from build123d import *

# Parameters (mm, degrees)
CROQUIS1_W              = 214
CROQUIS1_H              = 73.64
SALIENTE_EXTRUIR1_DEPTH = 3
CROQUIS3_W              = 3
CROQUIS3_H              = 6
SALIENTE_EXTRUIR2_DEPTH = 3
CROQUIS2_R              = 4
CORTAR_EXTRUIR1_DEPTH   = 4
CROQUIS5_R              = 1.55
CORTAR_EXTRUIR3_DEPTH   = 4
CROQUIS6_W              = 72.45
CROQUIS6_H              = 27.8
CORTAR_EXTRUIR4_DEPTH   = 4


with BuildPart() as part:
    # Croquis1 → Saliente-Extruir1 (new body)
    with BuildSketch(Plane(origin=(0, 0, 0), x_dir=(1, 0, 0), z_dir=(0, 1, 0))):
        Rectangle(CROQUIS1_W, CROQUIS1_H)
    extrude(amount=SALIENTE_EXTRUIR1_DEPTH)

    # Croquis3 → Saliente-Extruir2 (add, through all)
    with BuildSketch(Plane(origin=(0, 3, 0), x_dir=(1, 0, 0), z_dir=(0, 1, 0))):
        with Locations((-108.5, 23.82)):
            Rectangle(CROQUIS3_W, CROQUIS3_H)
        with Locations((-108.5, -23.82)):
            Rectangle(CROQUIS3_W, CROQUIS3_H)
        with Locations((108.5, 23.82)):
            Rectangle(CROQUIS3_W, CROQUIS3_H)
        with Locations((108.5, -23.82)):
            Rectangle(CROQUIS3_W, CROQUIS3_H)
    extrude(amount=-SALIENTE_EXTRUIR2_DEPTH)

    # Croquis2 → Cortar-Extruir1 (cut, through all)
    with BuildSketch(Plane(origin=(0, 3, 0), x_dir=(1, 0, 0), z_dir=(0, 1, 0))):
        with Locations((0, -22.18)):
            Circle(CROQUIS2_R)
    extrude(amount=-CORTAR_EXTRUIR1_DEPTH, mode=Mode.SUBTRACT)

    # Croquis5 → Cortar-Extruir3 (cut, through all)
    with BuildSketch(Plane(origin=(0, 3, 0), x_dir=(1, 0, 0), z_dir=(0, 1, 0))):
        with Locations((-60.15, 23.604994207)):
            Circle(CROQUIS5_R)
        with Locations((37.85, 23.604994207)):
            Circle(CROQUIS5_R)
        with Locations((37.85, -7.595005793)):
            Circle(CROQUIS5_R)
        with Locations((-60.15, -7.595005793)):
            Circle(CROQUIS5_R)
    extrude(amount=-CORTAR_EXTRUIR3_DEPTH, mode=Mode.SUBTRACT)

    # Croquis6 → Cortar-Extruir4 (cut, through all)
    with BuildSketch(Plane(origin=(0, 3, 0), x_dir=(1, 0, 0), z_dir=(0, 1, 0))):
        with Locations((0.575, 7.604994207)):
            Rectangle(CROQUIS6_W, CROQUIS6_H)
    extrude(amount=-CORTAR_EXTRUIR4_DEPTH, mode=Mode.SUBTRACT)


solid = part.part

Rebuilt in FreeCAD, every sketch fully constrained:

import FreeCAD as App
import Part
import Sketcher

V = App.Vector
Q = App.Units.Quantity

doc = App.newDocument("Part")
params = doc.addObject("Spreadsheet::Sheet", "Params")
for row, (alias, value) in enumerate([
    ("sketch1_width", "214 mm"),
    ("sketch1_height", "73.64 mm"),
    ("pad1_length", "3 mm"),
    ("sketch2_width", "3 mm"),
    ("sketch2_height", "6 mm"),
    ("sketch3_diameter", "8 mm"),
    ("sketch4_diameter", "3.1 mm"),
    ("sketch5_height", "27.8 mm"),
    ("sketch5_width", "72.45 mm"),
], start=1):
    params.set(f"A{row}", alias)
    params.set(f"B{row}", "=" + value)
    params.setAlias(f"B{row}", alias)

body = doc.addObject("PartDesign::Body", "Body")

# Sketch on XZ plane
sketch1 = body.newObject("Sketcher::SketchObject", "Sketch")
sketch1.AttachmentSupport = (doc.getObject("XZ_Plane"), [""])
sketch1.MapMode = "FlatFace"
sketch1.addGeometry(Part.LineSegment(V(-107, -37, 0), V(-107, 37, 0)), False)
sketch1.addGeometry(Part.LineSegment(V(-107, 37, 0), V(107, 37, 0)), False)
sketch1.addGeometry(Part.LineSegment(V(107, 37, 0), V(107, -37, 0)), False)
sketch1.addGeometry(Part.LineSegment(V(107, -37, 0), V(-107, -37, 0)), False)
sketch1.addConstraint(Sketcher.Constraint("Coincident", 0, 2, 1, 1))
sketch1.addConstraint(Sketcher.Constraint("Coincident", 1, 2, 2, 1))
sketch1.addConstraint(Sketcher.Constraint("Coincident", 2, 2, 3, 1))
sketch1.addConstraint(Sketcher.Constraint("Coincident", 3, 2, 0, 1))
sketch1.addConstraint(Sketcher.Constraint("Vertical", 0))
sketch1.addConstraint(Sketcher.Constraint("Horizontal", 1))
sketch1.addConstraint(Sketcher.Constraint("Vertical", 2))
sketch1.addConstraint(Sketcher.Constraint("Horizontal", 3))
sketch1.addConstraint(Sketcher.Constraint("Symmetric", 0, 2, 2, 2, -1, 1))
sketch1.addConstraint(Sketcher.Constraint("DistanceX", 1, 1, 1, 2, Q("214 mm")))
sketch1.addConstraint(Sketcher.Constraint("DistanceY", 0, 1, 0, 2, Q("73.64 mm")))
sketch1.setExpression("Constraints[9]", "Params.sketch1_width")
sketch1.setExpression("Constraints[10]", "Params.sketch1_height")
pad1 = body.newObject("PartDesign::Pad", "Pad")
pad1.Profile = sketch1
pad1.setExpression("Length", "Params.pad1_length")
pad1.Reversed = True

# Sketch on XZ plane
sketch2 = body.newObject("Sketcher::SketchObject", "Sketch001")
sketch2.AttachmentSupport = (doc.getObject("XZ_Plane"), [""])
sketch2.MapMode = "FlatFace"
sketch2.AttachmentOffset = App.Placement(V(0, 0, -3), App.Rotation())
sketch2.addGeometry(Part.LineSegment(V(-110, -26.8, 0), V(-110, -20.8, 0)), False)
sketch2.addGeometry(Part.LineSegment(V(-110, -20.8, 0), V(-107, -20.8, 0)), False)
sketch2.addGeometry(Part.LineSegment(V(-107, -20.8, 0), V(-107, -26.8, 0)), False)
sketch2.addGeometry(Part.LineSegment(V(-107, -26.8, 0), V(-110, -26.8, 0)), False)
sketch2.addGeometry(Part.LineSegment(V(-110, 20.8, 0), V(-110, 26.8, 0)), False)
sketch2.addGeometry(Part.LineSegment(V(-110, 26.8, 0), V(-107, 26.8, 0)), False)
sketch2.addGeometry(Part.LineSegment(V(-107, 26.8, 0), V(-107, 20.8, 0)), False)
sketch2.addGeometry(Part.LineSegment(V(-107, 20.8, 0), V(-110, 20.8, 0)), False)
sketch2.addGeometry(Part.LineSegment(V(107, -26.8, 0), V(107, -20.8, 0)), False)
sketch2.addGeometry(Part.LineSegment(V(107, -20.8, 0), V(110, -20.8, 0)), False)
sketch2.addGeometry(Part.LineSegment(V(110, -20.8, 0), V(110, -26.8, 0)), False)
sketch2.addGeometry(Part.LineSegment(V(110, -26.8, 0), V(107, -26.8, 0)), False)
sketch2.addGeometry(Part.LineSegment(V(107, 20.8, 0), V(107, 26.8, 0)), False)
sketch2.addGeometry(Part.LineSegment(V(107, 26.8, 0), V(110, 26.8, 0)), False)
sketch2.addGeometry(Part.LineSegment(V(110, 26.8, 0), V(110, 20.8, 0)), False)
sketch2.addGeometry(Part.LineSegment(V(110, 20.8, 0), V(107, 20.8, 0)), False)
sketch2.addConstraint(Sketcher.Constraint("Coincident", 0, 2, 1, 1))
sketch2.addConstraint(Sketcher.Constraint("Coincident", 1, 2, 2, 1))
sketch2.addConstraint(Sketcher.Constraint("Coincident", 2, 2, 3, 1))
sketch2.addConstraint(Sketcher.Constraint("Coincident", 3, 2, 0, 1))
sketch2.addConstraint(Sketcher.Constraint("Coincident", 4, 2, 5, 1))
sketch2.addConstraint(Sketcher.Constraint("Coincident", 5, 2, 6, 1))
sketch2.addConstraint(Sketcher.Constraint("Coincident", 6, 2, 7, 1))
sketch2.addConstraint(Sketcher.Constraint("Coincident", 7, 2, 4, 1))
sketch2.addConstraint(Sketcher.Constraint("Coincident", 8, 2, 9, 1))
sketch2.addConstraint(Sketcher.Constraint("Coincident", 9, 2, 10, 1))
sketch2.addConstraint(Sketcher.Constraint("Coincident", 10, 2, 11, 1))
sketch2.addConstraint(Sketcher.Constraint("Coincident", 11, 2, 8, 1))
sketch2.addConstraint(Sketcher.Constraint("Coincident", 12, 2, 13, 1))
sketch2.addConstraint(Sketcher.Constraint("Coincident", 13, 2, 14, 1))
sketch2.addConstraint(Sketcher.Constraint("Coincident", 14, 2, 15, 1))
sketch2.addConstraint(Sketcher.Constraint("Coincident", 15, 2, 12, 1))
sketch2.addConstraint(Sketcher.Constraint("Vertical", 0))
sketch2.addConstraint(Sketcher.Constraint("Horizontal", 1))
sketch2.addConstraint(Sketcher.Constraint("Vertical", 2))
sketch2.addConstraint(Sketcher.Constraint("Horizontal", 3))
sketch2.addConstraint(Sketcher.Constraint("Vertical", 4))
sketch2.addConstraint(Sketcher.Constraint("Horizontal", 5))
sketch2.addConstraint(Sketcher.Constraint("Vertical", 6))
sketch2.addConstraint(Sketcher.Constraint("Horizontal", 7))
sketch2.addConstraint(Sketcher.Constraint("Vertical", 8))
sketch2.addConstraint(Sketcher.Constraint("Horizontal", 9))
sketch2.addConstraint(Sketcher.Constraint("Vertical", 10))
sketch2.addConstraint(Sketcher.Constraint("Horizontal", 11))
sketch2.addConstraint(Sketcher.Constraint("Vertical", 12))
sketch2.addConstraint(Sketcher.Constraint("Horizontal", 13))
sketch2.addConstraint(Sketcher.Constraint("Vertical", 14))
sketch2.addConstraint(Sketcher.Constraint("Horizontal", 15))
sketch2.addConstraint(Sketcher.Constraint("Symmetric", 6, 2, 8, 2, -1, 1))
sketch2.addConstraint(Sketcher.Constraint("Symmetric", 4, 2, 10, 2, -1, 1))
sketch2.addConstraint(Sketcher.Constraint("Symmetric", 2, 2, 12, 2, -1, 1))
sketch2.addConstraint(Sketcher.Constraint("Symmetric", 0, 2, 14, 2, -1, 1))
sketch2.addConstraint(Sketcher.Constraint("Symmetric", 1, 2, 8, 2, -2))
sketch2.addConstraint(Sketcher.Constraint("Symmetric", 3, 2, 10, 2, -2))
sketch2.addConstraint(Sketcher.Constraint("DistanceX", 1, 1, 1, 2, Q("3 mm")))
sketch2.addConstraint(Sketcher.Constraint("DistanceY", 0, 1, 0, 2, Q("6 mm")))
sketch2.addConstraint(Sketcher.Constraint("DistanceX", 0, 2, -1, 1, Q("110 mm")))
sketch2.addConstraint(Sketcher.Constraint("DistanceY", 0, 2, -1, 1, Q("20.82 mm")))
sketch2.setExpression("Constraints[38]", "Params.sketch2_width")
sketch2.setExpression("Constraints[39]", "Params.sketch2_height")
pad2 = body.newObject("PartDesign::Pad", "Pad001")
pad2.Profile = sketch2
pad2.Type = "UpToLast"

# Sketch on XZ plane
sketch3 = body.newObject("Sketcher::SketchObject", "Sketch002")
sketch3.AttachmentSupport = (doc.getObject("XZ_Plane"), [""])
sketch3.MapMode = "FlatFace"
sketch3.AttachmentOffset = App.Placement(V(0, 0, -3), App.Rotation())
sketch3.addGeometry(Part.Circle(V(0, 22.2, 0), V(0, 0, 1), 4), False)
sketch3.addConstraint(Sketcher.Constraint("PointOnObject", 0, 3, -2))
sketch3.addConstraint(Sketcher.Constraint("Diameter", 0, Q("8 mm")))
sketch3.addConstraint(Sketcher.Constraint("DistanceY", -1, 1, 0, 3, Q("22.18 mm")))
sketch3.setExpression("Constraints[1]", "Params.sketch3_diameter")
pocket1 = body.newObject("PartDesign::Pocket", "Pocket")
pocket1.Profile = sketch3
pocket1.Type = "ThroughAll"
pocket1.Reversed = True

# Sketch on XZ plane
sketch4 = body.newObject("Sketcher::SketchObject", "Sketch003")
sketch4.AttachmentSupport = (doc.getObject("XZ_Plane"), [""])
sketch4.MapMode = "FlatFace"
sketch4.AttachmentOffset = App.Placement(V(0, 0, -3), App.Rotation())
sketch4.addGeometry(Part.Circle(V(-60.1, -23.6, 0), V(0, 0, 1), 1.6), False)
sketch4.addGeometry(Part.Circle(V(37.9, -23.6, 0), V(0, 0, 1), 1.6), False)
sketch4.addGeometry(Part.Circle(V(37.9, 7.6, 0), V(0, 0, 1), 1.6), False)
sketch4.addGeometry(Part.Circle(V(-60.1, 7.6, 0), V(0, 0, 1), 1.6), False)
sketch4.addConstraint(Sketcher.Constraint("Equal", 0, 1))
sketch4.addConstraint(Sketcher.Constraint("Equal", 1, 2))
sketch4.addConstraint(Sketcher.Constraint("Equal", 2, 3))
sketch4.addConstraint(Sketcher.Constraint("Horizontal", 0, 3, 1, 3))
sketch4.addConstraint(Sketcher.Constraint("Horizontal", 2, 3, 3, 3))
sketch4.addConstraint(Sketcher.Constraint("Vertical", 1, 3, 2, 3))
sketch4.addConstraint(Sketcher.Constraint("Vertical", 0, 3, 3, 3))
sketch4.addConstraint(Sketcher.Constraint("Diameter", 0, Q("3.1 mm")))
sketch4.addConstraint(Sketcher.Constraint("DistanceX", 0, 3, 1, 3, Q("98 mm")))
sketch4.addConstraint(Sketcher.Constraint("DistanceY", 1, 3, 2, 3, Q("31.2 mm")))
sketch4.addConstraint(Sketcher.Constraint("DistanceX", 0, 3, -1, 1, Q("60.15 mm")))
sketch4.addConstraint(Sketcher.Constraint("DistanceY", 0, 3, -1, 1, Q("23.604994 mm")))
sketch4.setExpression("Constraints[7]", "Params.sketch4_diameter")
pocket2 = body.newObject("PartDesign::Pocket", "Pocket001")
pocket2.Profile = sketch4
pocket2.Type = "ThroughAll"
pocket2.Reversed = True

# Sketch on XZ plane
sketch5 = body.newObject("Sketcher::SketchObject", "Sketch004")
sketch5.AttachmentSupport = (doc.getObject("XZ_Plane"), [""])
sketch5.MapMode = "FlatFace"
sketch5.AttachmentOffset = App.Placement(V(0, 0, -3), App.Rotation())
sketch5.addGeometry(Part.LineSegment(V(-36, -22, 0), V(-36, 6, 0)), False)
sketch5.addGeometry(Part.LineSegment(V(-36, 6, 0), V(37, 6, 0)), False)
sketch5.addGeometry(Part.LineSegment(V(37, 6, 0), V(37, -22, 0)), False)
sketch5.addGeometry(Part.LineSegment(V(37, -22, 0), V(-36, -22, 0)), False)
sketch5.addConstraint(Sketcher.Constraint("Coincident", 0, 2, 1, 1))
sketch5.addConstraint(Sketcher.Constraint("Coincident", 1, 2, 2, 1))
sketch5.addConstraint(Sketcher.Constraint("Coincident", 2, 2, 3, 1))
sketch5.addConstraint(Sketcher.Constraint("Coincident", 3, 2, 0, 1))
sketch5.addConstraint(Sketcher.Constraint("Vertical", 0))
sketch5.addConstraint(Sketcher.Constraint("Horizontal", 1))
sketch5.addConstraint(Sketcher.Constraint("Vertical", 2))
sketch5.addConstraint(Sketcher.Constraint("Horizontal", 3))
sketch5.addConstraint(Sketcher.Constraint("DistanceY", 0, 1, 0, 2, Q("27.8 mm")))
sketch5.addConstraint(Sketcher.Constraint("DistanceX", 1, 1, 1, 2, Q("72.45 mm")))
sketch5.addConstraint(Sketcher.Constraint("DistanceX", -1, 1, 1, 2, Q("36.8 mm")))
sketch5.addConstraint(Sketcher.Constraint("DistanceY", -1, 1, 0, 2, Q("6.295006 mm")))
sketch5.setExpression("Constraints[8]", "Params.sketch5_height")
sketch5.setExpression("Constraints[9]", "Params.sketch5_width")
pocket3 = body.newObject("PartDesign::Pocket", "Pocket002")
pocket3.Profile = sketch5
pocket3.Type = "ThroughAll"
pocket3.Reversed = True

doc.recompute()
